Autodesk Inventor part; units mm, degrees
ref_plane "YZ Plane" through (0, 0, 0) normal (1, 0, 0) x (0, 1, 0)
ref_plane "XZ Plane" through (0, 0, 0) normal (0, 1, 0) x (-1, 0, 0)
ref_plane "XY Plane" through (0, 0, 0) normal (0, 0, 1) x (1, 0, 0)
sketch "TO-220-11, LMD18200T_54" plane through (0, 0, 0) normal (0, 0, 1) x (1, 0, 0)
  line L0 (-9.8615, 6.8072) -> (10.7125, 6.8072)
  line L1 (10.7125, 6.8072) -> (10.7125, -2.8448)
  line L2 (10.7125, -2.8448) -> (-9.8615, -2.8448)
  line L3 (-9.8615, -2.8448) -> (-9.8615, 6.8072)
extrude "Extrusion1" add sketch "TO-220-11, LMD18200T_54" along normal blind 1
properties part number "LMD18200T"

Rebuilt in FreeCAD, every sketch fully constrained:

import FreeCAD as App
import Part
import Sketcher
Q = App.Units.Quantity

doc = App.newDocument("Part")
body = doc.addObject("PartDesign::Body", "Body")

# Sketch on XY plane
sketch1 = body.newObject("Sketcher::SketchObject", "Sketch")
sketch1.AttachmentSupport = (doc.getObject("XY_Plane"), [""])
sketch1.MapMode = "FlatFace"
sketch1.addGeometry(Part.LineSegment(App.Vector(11, 7, 0), App.Vector(-10, 7, 0)), False)
sketch1.addGeometry(Part.LineSegment(App.Vector(-10, 7, 0), App.Vector(-10, -3, 0)), False)
sketch1.addGeometry(Part.LineSegment(App.Vector(-10, -3, 0), App.Vector(11, -3, 0)), False)
sketch1.addGeometry(Part.LineSegment(App.Vector(11, -3, 0), App.Vector(11, 7, 0)), False)
sketch1.addConstraint(Sketcher.Constraint("Coincident", 0, 2, 1, 1))
sketch1.addConstraint(Sketcher.Constraint("Coincident", 1, 2, 2, 1))
sketch1.addConstraint(Sketcher.Constraint("Coincident", 2, 2, 3, 1))
sketch1.addConstraint(Sketcher.Constraint("Coincident", 3, 2, 0, 1))
sketch1.addConstraint(Sketcher.Constraint("Horizontal", 0))
sketch1.addConstraint(Sketcher.Constraint("Vertical", 1))
sketch1.addConstraint(Sketcher.Constraint("Horizontal", 2))
sketch1.addConstraint(Sketcher.Constraint("Vertical", 3))
sketch1.addConstraint(Sketcher.Constraint("DistanceX", 0, 2, 0, 1, Q("0.81 in")))
sketch1.addConstraint(Sketcher.Constraint("DistanceY", 1, 2, 1, 1, Q("0.38 in")))
sketch1.addConstraint(Sketcher.Constraint("DistanceY", -1, 1, 0, 2, Q("0.268 in")))
sketch1.addConstraint(Sketcher.Constraint("DistanceX", 0, 2, -1, 1, 9.8615))
pad1 = body.newObject("PartDesign::Pad", "Pad")
pad1.Profile = sketch1
pad1.Length = 1

doc.recompute()
